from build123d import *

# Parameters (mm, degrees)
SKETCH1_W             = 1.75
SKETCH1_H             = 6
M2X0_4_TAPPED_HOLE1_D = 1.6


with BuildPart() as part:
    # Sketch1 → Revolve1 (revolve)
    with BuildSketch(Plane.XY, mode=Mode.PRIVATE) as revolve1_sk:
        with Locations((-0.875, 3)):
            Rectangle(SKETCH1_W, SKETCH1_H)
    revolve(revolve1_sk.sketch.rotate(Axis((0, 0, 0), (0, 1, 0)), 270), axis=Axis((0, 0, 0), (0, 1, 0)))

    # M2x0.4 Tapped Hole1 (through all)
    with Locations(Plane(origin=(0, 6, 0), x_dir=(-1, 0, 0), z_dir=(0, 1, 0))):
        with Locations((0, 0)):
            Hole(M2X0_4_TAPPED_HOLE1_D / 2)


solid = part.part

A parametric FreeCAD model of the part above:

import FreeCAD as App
import Part
import Sketcher
Q = App.Units.Quantity

doc = App.newDocument("Part")
params = doc.addObject("Spreadsheet::Sheet", "Params")
for row, (alias, value) in enumerate([
    ("sketch1_height", "6 mm"),
    ("sketch1_width", "1.75 mm"),
    ("revolution_angle", "360 deg"),
    ("sketch2_diameter", "1.6 mm"),
    ("hole_diameter", "1.6 mm"),
], start=1):
    params.set(f"A{row}", alias)
    params.set(f"B{row}", "=" + value)
    params.setAlias(f"B{row}", alias)

body = doc.addObject("PartDesign::Body", "Body")

sketch1 = doc.addObject("Sketcher::SketchObject", "Sketch")
body.addObject(sketch1)
sketch1.AttachmentSupport = (doc.XY_Plane, [""])
sketch1.MapMode = "FlatFace"
sketch1.addGeometry([
    Part.LineSegment(App.Vector(-1.8, 6, 0), App.Vector(-1.8, 0, 0)),
    Part.LineSegment(App.Vector(-1.8, 0, 0), App.Vector(0, 0, 0)),
    Part.LineSegment(App.Vector(0, 0, 0), App.Vector(0, 6, 0)),
    Part.LineSegment(App.Vector(0, 6, 0), App.Vector(-1.8, 6, 0)),
], False)
sketch1.addConstraint([
    Sketcher.Constraint("Coincident", 0, 2, 1, 1),
    Sketcher.Constraint("Coincident", 1, 2, 2, 1),
    Sketcher.Constraint("Coincident", 2, 2, 3, 1),
    Sketcher.Constraint("Coincident", 3, 2, 0, 1),
    Sketcher.Constraint("Vertical", 0),
    Sketcher.Constraint("Horizontal", 1),
    Sketcher.Constraint("Vertical", 2),
    Sketcher.Constraint("Horizontal", 3),
    Sketcher.Constraint("Coincident", 1, 2, -1, 1),
    Sketcher.Constraint("DistanceY", 0, 2, 0, 1, Q("6 mm")),
    Sketcher.Constraint("DistanceX", 1, 1, 1, 2, Q("1.75 mm")),
])
sketch1.setExpression("Constraints[9]", "Params.sketch1_height")
sketch1.setExpression("Constraints[10]", "Params.sketch1_width")
revolution = doc.addObject("PartDesign::Revolution", "Revolution")
body.addObject(revolution)
revolution.Profile = sketch1
revolution.ReferenceAxis = (sketch1, ["V_Axis"])
revolution.setExpression("Angle", "Params.revolution_angle")

sketch2 = doc.addObject("Sketcher::SketchObject", "Sketch001")
body.addObject(sketch2)
sketch2.AttachmentSupport = (doc.XZ_Plane, [""])
sketch2.MapMode = "FlatFace"
sketch2.AttachmentOffset = App.Placement(App.Vector(0, 0, -6), App.Rotation())
sketch2.addGeometry(Part.Circle(App.Vector(0, 0, 0), App.Vector(0, 0, 1), 0.8), False)
sketch2.addConstraint([
    Sketcher.Constraint("Coincident", 0, 3, -1, 1),
    Sketcher.Constraint("Diameter", 0, Q("1.6 mm")),
])
sketch2.setExpression("Constraints[1]", "Params.sketch2_diameter")
doc.recompute()
hole = doc.addObject("PartDesign::Hole", "Hole")
body.addObject(hole)
hole.Profile = sketch2
hole.ThreadType = "None"
hole.setExpression("Diameter", "Params.hole_diameter")
hole.DepthType = "ThroughAll"
hole.Reversed = True

doc.recompute()
